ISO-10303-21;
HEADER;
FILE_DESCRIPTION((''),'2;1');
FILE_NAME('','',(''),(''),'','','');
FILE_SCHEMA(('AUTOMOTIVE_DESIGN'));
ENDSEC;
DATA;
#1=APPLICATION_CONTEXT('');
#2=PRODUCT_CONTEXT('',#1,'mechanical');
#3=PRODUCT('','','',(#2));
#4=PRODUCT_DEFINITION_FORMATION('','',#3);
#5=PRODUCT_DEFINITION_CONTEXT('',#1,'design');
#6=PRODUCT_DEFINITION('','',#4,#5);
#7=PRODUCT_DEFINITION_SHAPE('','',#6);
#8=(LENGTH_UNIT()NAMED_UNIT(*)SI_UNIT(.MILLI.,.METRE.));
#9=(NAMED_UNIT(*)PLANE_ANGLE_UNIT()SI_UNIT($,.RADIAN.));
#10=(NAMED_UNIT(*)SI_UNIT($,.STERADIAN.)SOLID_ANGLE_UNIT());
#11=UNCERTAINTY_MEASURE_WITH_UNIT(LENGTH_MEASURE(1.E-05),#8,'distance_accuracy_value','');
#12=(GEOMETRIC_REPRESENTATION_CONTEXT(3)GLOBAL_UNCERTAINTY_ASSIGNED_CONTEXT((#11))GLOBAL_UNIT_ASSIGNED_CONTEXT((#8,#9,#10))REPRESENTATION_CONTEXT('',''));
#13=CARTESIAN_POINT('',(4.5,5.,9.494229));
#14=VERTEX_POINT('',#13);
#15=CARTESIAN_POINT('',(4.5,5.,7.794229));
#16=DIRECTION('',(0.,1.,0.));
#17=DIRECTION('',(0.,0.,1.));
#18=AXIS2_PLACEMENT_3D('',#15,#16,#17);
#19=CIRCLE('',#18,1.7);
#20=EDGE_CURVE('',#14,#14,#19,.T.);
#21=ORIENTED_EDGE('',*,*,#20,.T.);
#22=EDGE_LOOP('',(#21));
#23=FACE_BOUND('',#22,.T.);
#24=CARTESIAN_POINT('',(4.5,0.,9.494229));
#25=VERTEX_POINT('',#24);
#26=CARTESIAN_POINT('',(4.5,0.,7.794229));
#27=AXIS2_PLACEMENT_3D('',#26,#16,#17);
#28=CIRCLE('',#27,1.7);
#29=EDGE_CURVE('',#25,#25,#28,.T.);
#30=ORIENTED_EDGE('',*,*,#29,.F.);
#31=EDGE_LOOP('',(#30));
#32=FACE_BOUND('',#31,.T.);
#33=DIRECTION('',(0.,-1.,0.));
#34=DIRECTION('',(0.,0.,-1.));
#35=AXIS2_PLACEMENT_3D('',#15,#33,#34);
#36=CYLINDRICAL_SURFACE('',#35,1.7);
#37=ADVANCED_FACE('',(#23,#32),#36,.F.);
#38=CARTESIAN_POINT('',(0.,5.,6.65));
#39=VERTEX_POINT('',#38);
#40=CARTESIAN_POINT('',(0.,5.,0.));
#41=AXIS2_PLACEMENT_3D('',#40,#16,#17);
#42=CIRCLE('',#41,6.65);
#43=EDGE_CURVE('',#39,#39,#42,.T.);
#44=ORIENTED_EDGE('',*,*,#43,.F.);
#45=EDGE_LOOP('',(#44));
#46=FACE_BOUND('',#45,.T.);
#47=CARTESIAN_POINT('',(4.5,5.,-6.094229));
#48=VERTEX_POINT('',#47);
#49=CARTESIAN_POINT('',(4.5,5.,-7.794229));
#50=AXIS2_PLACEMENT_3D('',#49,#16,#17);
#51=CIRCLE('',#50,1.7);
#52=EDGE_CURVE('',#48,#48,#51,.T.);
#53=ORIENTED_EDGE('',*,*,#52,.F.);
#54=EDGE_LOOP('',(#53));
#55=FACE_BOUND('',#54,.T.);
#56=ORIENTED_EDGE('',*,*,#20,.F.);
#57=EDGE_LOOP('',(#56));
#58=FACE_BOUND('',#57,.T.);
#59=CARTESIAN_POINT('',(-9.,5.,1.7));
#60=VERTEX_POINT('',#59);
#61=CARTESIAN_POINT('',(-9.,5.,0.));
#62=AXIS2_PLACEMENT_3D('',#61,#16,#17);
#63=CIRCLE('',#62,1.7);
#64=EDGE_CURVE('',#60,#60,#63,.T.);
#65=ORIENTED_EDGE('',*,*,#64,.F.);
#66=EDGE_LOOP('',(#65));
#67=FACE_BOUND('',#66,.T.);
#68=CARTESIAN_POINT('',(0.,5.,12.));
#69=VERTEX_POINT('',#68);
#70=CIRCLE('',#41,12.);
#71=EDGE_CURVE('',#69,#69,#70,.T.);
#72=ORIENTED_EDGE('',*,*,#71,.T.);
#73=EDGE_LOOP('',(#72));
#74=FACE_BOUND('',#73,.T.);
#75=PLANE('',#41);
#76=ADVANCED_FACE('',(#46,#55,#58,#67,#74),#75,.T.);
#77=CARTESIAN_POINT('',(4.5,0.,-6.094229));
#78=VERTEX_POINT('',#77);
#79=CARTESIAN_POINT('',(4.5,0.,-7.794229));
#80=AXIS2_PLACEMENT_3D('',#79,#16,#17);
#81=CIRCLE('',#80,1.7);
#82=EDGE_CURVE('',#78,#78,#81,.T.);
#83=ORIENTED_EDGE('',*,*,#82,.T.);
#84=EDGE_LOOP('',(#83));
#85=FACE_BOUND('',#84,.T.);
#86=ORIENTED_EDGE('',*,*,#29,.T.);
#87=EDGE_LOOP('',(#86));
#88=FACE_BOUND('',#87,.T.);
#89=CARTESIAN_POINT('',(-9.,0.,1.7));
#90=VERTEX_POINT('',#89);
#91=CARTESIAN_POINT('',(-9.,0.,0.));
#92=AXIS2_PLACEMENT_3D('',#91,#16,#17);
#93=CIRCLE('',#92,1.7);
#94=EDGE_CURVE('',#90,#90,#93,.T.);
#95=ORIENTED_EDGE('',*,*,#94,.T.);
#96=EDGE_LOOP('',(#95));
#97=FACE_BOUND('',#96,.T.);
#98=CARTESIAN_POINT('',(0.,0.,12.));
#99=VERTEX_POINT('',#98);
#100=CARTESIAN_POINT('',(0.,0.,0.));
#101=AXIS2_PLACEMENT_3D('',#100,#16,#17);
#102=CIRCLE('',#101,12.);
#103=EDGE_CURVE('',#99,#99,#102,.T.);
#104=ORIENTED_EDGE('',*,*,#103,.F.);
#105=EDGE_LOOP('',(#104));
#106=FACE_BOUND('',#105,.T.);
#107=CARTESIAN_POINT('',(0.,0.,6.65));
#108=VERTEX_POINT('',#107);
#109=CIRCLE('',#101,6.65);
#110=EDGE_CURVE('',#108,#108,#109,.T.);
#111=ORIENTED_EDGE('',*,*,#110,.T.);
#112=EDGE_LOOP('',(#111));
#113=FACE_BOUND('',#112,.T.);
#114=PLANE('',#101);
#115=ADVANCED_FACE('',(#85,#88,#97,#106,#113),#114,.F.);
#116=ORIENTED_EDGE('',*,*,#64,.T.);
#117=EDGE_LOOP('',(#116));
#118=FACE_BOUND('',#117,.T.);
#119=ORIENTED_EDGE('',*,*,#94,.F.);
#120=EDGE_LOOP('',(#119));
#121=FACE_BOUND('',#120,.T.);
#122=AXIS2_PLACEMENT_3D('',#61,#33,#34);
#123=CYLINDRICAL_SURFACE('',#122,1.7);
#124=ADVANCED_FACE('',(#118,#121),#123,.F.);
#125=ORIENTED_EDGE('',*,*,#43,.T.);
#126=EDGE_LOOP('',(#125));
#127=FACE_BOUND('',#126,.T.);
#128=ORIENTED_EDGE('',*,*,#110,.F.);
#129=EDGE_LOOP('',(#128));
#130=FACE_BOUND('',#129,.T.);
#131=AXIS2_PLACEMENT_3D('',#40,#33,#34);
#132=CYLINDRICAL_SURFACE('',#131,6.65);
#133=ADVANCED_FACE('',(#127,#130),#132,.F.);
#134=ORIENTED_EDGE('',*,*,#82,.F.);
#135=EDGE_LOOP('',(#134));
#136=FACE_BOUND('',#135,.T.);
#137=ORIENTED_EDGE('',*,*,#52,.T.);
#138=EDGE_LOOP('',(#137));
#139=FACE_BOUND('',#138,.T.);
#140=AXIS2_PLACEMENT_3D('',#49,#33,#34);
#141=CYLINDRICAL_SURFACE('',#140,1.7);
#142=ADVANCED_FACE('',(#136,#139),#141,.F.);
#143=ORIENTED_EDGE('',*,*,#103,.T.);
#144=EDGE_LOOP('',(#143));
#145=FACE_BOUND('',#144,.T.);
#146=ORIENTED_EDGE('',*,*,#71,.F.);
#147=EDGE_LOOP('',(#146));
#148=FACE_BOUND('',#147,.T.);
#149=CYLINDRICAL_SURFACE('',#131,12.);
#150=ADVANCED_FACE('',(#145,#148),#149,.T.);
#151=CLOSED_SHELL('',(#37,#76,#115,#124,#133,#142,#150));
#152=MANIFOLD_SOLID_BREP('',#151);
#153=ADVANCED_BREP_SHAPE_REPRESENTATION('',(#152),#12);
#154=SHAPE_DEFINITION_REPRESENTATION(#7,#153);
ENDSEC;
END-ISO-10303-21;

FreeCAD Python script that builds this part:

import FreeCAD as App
import Part
import Sketcher
Q = App.Units.Quantity

doc = App.newDocument("Part")
params = doc.addObject("Spreadsheet::Sheet", "Params")
for row, (alias, value) in enumerate([
    ("sketch1_diameter", "24 mm"),
    ("sketch1_diameter2", "3.4 mm"),
    ("sketch1_diameter3", "13.3 mm"),
    ("pad1_length", "5 mm"),
], start=1):
    params.set(f"A{row}", alias)
    params.set(f"B{row}", "=" + value)
    params.setAlias(f"B{row}", alias)

body = doc.addObject("PartDesign::Body", "Body")

# Sketch on XZ plane
sketch1 = body.newObject("Sketcher::SketchObject", "Sketch")
sketch1.AttachmentSupport = (doc.getObject("XZ_Plane"), [""])
sketch1.MapMode = "FlatFace"
sketch1.addGeometry([
    Part.Circle(App.Vector(0, 0, 0), App.Vector(0, 0, 1), 12),  # 0
    Part.Circle(App.Vector(-9, 0, 0), App.Vector(0, 0, 1), 1.7),  # 1
    Part.Circle(App.Vector(4.5, -7.794229, 0), App.Vector(0, 0, 1), 1.7),  # 2
    Part.Circle(App.Vector(0, 0, 0), App.Vector(0, 0, 1), 6.65),  # 3
    Part.Circle(App.Vector(4.5, 7.794229, 0), App.Vector(0, 0, 1), 1.7),  # 4
], False)
sketch1.addConstraint([
    Sketcher.Constraint("Coincident", 0, 3, -1, 1),
    Sketcher.Constraint("Coincident", 3, 3, -1, 1),
    Sketcher.Constraint("Equal", 1, 2),
    Sketcher.Constraint("Equal", 2, 4),
    Sketcher.Constraint("Symmetric", 2, 3, 4, 3, -1),
    Sketcher.Constraint("PointOnObject", 1, 3, -1),
    Sketcher.Constraint("Diameter", 0, Q("24 mm")),
    Sketcher.Constraint("Diameter", 1, Q("3.4 mm")),
    Sketcher.Constraint("Diameter", 3, Q("13.3 mm")),
    Sketcher.Constraint("DistanceX", 1, 3, -1, 1, Q("9 mm")),
    Sketcher.Constraint("DistanceX", -1, 1, 2, 3, Q("4.5 mm")),
    Sketcher.Constraint("DistanceY", 2, 3, -1, 1, Q("7.794229 mm")),
])
sketch1.setExpression("Constraints[6]", "Params.sketch1_diameter")
sketch1.setExpression("Constraints[7]", "Params.sketch1_diameter2")
sketch1.setExpression("Constraints[8]", "Params.sketch1_diameter3")
pad1 = body.newObject("PartDesign::Pad", "Pad")
pad1.Profile = sketch1
pad1.setExpression("Length", "Params.pad1_length")
pad1.Reversed = True

doc.recompute()
